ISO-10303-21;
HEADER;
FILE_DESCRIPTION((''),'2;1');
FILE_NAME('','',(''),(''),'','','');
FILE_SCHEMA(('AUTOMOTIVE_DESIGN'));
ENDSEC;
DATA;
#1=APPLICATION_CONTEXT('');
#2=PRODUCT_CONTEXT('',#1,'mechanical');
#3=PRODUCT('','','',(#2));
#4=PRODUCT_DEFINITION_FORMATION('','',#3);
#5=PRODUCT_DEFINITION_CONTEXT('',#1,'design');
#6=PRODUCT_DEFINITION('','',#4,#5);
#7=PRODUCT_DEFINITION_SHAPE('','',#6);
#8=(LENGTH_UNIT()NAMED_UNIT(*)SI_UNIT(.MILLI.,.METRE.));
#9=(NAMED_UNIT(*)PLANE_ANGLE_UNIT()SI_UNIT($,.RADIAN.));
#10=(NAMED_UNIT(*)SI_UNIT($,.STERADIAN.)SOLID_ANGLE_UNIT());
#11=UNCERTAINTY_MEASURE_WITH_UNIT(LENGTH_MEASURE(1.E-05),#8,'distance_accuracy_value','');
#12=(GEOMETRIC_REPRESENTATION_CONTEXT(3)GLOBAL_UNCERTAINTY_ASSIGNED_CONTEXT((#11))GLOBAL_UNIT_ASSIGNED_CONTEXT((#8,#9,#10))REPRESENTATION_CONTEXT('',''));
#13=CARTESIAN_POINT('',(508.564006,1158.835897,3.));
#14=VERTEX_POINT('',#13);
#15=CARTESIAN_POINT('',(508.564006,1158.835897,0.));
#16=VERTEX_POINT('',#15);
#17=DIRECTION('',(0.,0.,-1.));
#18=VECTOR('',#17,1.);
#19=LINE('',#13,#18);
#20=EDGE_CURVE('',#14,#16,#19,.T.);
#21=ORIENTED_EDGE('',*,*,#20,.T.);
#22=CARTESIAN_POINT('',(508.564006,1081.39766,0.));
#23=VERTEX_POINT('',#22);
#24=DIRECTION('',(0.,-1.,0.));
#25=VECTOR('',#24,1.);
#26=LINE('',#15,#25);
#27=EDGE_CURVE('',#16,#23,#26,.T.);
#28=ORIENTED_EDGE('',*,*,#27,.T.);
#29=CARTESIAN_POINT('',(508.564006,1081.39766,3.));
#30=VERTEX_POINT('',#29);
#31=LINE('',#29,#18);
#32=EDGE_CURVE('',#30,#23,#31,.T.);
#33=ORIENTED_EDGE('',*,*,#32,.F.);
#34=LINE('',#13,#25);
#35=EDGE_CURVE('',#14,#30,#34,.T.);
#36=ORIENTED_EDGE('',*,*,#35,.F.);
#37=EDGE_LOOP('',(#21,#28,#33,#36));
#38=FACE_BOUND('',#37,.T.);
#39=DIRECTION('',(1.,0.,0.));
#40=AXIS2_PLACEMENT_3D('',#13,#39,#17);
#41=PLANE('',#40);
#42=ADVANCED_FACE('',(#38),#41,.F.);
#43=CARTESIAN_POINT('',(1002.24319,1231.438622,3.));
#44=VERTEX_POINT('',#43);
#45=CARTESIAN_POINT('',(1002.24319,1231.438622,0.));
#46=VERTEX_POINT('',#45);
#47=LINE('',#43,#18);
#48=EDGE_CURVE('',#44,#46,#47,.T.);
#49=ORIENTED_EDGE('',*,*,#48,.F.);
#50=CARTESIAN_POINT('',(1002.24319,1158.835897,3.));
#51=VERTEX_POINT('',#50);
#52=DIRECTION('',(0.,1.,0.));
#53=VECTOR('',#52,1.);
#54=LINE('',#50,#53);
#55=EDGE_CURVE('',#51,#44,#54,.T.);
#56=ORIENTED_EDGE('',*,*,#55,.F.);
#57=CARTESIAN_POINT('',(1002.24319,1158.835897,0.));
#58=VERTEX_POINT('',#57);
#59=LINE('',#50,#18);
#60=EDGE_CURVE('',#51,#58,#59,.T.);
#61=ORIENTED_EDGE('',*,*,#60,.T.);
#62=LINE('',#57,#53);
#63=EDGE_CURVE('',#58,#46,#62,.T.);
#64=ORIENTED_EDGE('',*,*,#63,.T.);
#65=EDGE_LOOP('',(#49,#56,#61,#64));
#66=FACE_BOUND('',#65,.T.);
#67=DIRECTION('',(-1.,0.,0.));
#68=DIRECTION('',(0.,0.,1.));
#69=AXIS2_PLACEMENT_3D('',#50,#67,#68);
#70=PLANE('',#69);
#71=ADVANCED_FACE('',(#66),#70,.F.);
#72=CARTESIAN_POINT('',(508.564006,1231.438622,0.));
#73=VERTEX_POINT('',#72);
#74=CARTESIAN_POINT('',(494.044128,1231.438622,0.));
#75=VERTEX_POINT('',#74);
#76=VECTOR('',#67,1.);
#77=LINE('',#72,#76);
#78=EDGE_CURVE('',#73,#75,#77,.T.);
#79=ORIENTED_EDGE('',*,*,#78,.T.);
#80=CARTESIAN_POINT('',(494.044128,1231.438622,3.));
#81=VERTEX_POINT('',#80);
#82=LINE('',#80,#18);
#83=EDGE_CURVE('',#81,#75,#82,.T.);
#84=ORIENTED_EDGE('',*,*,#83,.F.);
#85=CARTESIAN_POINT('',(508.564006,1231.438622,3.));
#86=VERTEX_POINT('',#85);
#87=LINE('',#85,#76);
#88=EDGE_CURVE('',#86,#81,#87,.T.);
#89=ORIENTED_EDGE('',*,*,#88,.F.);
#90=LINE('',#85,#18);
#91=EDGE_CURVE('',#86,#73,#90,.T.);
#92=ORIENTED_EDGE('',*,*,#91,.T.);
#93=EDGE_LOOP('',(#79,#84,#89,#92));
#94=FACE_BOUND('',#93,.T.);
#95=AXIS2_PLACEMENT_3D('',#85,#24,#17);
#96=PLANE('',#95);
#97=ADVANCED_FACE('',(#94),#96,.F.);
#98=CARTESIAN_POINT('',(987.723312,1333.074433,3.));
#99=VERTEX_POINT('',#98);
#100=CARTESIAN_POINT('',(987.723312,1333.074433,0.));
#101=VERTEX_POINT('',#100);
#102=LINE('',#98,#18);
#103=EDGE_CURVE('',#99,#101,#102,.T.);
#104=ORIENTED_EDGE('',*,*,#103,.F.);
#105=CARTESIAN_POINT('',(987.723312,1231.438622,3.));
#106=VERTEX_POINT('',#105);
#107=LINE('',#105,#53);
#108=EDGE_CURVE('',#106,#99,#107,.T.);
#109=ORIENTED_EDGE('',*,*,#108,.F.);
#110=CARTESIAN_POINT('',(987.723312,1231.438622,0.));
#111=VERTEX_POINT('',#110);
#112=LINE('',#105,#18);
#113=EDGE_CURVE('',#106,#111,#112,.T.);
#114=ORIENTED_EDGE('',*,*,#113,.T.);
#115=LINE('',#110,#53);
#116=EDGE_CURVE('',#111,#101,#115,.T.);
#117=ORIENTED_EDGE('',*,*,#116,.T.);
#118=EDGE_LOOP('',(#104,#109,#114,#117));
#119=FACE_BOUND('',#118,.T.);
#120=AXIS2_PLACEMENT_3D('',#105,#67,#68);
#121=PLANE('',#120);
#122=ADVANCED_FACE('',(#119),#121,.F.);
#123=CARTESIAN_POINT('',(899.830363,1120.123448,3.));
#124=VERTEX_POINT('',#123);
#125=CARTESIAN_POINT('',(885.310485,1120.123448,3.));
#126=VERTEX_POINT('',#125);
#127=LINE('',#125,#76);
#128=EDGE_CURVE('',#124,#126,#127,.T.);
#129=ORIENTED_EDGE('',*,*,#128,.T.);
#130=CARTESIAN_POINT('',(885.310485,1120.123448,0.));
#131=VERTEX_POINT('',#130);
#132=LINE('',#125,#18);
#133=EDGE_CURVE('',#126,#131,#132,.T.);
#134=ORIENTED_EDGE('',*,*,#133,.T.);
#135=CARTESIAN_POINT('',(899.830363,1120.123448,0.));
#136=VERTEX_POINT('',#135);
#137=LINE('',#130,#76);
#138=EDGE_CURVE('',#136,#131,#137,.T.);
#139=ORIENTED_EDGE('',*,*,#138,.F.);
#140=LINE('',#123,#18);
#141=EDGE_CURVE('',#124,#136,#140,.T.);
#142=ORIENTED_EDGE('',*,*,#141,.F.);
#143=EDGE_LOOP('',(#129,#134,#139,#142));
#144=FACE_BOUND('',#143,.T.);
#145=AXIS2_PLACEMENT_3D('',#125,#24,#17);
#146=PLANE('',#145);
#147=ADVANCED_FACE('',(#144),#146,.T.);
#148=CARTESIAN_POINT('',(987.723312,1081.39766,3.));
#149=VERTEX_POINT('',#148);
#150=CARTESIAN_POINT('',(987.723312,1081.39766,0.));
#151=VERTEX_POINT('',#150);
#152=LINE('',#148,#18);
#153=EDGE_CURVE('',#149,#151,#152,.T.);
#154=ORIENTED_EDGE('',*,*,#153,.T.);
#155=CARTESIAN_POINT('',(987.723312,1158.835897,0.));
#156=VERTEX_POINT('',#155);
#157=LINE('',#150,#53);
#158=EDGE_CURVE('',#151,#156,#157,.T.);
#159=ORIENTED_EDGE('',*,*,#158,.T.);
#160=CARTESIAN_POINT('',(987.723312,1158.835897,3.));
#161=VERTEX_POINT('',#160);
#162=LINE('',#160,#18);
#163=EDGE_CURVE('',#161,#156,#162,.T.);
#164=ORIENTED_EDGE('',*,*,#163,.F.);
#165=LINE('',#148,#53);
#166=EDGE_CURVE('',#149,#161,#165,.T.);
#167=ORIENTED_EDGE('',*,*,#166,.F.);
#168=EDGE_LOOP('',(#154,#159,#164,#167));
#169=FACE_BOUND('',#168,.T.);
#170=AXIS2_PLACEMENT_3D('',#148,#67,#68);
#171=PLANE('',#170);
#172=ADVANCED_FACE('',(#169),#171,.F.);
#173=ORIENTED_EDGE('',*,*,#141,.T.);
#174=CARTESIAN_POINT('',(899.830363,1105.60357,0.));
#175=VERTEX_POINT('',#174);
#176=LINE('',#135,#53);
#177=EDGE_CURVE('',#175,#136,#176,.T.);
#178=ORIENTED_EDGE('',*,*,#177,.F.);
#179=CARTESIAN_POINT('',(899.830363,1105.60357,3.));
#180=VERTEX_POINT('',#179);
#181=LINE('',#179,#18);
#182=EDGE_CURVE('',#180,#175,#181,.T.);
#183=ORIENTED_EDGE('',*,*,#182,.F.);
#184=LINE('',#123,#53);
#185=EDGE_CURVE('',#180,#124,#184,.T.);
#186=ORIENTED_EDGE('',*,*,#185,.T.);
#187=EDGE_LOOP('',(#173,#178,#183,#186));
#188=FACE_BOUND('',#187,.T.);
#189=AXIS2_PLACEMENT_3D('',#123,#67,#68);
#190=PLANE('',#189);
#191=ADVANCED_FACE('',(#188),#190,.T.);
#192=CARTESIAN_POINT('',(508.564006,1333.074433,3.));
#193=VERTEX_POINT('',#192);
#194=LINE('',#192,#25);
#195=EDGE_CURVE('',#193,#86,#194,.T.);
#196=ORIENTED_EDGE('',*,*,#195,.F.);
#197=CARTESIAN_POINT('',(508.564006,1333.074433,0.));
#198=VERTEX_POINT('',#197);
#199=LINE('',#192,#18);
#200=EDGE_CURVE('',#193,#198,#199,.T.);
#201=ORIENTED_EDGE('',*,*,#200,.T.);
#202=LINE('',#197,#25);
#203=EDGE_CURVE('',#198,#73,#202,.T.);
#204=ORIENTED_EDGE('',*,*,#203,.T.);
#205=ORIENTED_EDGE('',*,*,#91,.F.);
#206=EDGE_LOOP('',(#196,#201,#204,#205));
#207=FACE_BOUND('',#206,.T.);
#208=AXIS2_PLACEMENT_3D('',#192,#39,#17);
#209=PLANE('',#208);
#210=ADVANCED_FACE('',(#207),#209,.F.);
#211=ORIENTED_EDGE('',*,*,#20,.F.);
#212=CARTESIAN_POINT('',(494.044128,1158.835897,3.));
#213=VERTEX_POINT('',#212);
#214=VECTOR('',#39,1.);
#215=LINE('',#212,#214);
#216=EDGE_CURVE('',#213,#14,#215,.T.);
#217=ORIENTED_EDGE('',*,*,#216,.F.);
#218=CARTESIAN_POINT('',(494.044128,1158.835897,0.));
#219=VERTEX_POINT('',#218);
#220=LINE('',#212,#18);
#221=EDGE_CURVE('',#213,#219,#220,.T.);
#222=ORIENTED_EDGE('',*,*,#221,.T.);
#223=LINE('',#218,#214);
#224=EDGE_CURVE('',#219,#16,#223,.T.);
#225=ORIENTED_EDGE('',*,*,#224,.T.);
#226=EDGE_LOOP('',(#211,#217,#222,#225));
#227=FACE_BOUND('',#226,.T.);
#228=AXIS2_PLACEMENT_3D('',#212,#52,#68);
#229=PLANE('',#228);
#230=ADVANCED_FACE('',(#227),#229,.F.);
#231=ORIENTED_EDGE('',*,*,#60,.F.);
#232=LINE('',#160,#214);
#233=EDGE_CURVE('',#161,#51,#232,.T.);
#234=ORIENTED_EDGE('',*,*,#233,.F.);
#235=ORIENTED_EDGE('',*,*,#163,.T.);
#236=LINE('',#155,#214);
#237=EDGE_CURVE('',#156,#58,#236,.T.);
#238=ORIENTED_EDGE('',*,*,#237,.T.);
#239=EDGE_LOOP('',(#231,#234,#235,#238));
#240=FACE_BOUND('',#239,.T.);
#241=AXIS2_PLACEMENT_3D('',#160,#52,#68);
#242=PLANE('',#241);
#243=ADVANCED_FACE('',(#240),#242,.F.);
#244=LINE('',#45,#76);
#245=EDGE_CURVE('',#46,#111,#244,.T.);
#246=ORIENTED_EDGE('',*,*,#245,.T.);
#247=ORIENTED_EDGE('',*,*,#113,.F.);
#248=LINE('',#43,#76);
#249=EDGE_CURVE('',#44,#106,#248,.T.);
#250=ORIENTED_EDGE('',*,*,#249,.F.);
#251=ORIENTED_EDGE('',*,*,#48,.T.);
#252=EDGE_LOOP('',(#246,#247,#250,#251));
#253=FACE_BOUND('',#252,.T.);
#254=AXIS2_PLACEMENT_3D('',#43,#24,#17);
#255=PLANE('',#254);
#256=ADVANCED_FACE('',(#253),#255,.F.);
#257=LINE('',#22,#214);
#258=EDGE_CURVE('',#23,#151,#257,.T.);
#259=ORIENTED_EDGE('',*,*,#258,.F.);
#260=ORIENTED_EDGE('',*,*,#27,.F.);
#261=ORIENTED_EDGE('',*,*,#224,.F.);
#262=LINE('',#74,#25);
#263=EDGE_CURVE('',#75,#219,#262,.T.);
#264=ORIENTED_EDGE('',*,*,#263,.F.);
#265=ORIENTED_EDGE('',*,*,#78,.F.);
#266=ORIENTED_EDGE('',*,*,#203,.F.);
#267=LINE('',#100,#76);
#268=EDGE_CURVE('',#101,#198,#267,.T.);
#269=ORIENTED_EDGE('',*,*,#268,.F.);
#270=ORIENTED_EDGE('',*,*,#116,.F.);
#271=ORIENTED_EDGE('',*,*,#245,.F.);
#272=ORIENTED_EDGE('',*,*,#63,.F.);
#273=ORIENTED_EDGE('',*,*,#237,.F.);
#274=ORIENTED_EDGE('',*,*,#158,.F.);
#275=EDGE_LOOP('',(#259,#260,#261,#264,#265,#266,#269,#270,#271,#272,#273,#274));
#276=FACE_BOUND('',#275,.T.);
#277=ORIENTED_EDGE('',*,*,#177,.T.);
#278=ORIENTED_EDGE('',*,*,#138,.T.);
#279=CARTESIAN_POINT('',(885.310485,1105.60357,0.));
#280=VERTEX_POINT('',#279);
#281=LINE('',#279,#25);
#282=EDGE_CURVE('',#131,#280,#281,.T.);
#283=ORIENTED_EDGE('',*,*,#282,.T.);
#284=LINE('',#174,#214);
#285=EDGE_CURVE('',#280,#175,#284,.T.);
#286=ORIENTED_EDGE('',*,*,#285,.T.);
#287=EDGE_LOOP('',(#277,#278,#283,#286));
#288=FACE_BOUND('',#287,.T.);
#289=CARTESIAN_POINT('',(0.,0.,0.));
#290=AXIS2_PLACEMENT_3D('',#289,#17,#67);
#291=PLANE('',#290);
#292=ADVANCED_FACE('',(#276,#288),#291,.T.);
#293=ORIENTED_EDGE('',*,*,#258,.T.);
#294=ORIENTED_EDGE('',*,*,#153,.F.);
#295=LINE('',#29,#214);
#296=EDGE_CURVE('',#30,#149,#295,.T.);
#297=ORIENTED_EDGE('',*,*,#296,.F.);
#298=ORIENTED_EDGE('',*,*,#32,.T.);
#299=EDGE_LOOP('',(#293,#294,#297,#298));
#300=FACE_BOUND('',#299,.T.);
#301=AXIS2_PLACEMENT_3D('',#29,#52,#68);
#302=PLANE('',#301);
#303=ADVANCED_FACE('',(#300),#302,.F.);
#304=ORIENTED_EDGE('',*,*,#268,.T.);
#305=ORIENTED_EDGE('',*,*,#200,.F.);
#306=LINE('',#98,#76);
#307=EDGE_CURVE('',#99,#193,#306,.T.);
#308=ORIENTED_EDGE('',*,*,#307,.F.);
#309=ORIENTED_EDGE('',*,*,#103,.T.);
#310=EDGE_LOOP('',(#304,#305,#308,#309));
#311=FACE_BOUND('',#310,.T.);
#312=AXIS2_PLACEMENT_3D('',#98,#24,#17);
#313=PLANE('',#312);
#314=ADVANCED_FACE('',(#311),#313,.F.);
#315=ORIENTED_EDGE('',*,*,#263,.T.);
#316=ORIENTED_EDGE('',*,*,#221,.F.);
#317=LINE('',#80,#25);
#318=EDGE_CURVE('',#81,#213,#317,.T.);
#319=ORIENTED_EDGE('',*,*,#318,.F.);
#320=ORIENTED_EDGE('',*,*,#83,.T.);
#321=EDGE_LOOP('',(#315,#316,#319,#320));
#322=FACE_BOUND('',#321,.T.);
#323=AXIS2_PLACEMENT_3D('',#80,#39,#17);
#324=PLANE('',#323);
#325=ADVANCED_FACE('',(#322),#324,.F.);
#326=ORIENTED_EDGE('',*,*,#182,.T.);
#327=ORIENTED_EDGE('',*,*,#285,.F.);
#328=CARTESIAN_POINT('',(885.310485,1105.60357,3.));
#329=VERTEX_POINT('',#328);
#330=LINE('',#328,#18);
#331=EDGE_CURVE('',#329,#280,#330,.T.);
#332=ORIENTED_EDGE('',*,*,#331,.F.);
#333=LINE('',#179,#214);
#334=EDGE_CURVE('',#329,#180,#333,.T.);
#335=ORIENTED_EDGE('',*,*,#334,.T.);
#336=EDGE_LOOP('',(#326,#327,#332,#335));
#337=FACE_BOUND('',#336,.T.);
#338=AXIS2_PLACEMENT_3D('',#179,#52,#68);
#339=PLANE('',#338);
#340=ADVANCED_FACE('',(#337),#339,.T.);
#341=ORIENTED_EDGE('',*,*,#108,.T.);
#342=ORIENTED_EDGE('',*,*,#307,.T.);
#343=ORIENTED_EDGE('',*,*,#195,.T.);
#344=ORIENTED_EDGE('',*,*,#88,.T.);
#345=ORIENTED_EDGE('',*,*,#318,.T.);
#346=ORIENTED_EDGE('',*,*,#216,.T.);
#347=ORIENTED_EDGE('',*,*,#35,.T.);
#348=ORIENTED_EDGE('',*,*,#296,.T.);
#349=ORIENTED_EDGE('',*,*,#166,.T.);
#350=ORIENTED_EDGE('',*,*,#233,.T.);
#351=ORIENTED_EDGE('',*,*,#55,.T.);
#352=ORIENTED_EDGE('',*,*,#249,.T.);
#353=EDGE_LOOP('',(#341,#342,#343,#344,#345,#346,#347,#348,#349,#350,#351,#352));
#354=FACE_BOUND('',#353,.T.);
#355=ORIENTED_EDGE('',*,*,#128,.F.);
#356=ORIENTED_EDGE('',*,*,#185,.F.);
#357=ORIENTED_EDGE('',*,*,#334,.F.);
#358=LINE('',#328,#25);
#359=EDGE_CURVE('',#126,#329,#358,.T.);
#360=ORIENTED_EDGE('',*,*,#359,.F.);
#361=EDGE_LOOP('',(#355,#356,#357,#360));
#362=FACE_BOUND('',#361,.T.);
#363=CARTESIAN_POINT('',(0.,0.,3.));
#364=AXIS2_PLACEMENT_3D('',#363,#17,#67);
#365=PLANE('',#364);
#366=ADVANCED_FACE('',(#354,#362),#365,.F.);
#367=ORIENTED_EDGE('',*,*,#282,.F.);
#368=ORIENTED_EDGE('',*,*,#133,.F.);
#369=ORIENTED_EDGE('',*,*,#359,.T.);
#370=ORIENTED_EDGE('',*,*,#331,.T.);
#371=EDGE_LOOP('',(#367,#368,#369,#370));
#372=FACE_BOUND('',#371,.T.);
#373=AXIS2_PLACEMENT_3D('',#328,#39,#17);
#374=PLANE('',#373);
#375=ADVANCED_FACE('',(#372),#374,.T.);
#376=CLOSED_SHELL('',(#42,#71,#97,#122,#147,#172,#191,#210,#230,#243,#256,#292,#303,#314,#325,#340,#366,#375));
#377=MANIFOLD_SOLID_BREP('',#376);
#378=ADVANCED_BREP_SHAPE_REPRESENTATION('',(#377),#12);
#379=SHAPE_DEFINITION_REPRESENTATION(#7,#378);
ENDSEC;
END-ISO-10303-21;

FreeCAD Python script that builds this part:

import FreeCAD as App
import Part
import Sketcher

V = App.Vector

doc = App.newDocument("Part")
body = doc.addObject("PartDesign::Body", "Body")

sketch1 = doc.addObject("Sketcher::SketchObject", "Sketch")
body.addObject(sketch1)
sketch1.AttachmentSupport = (doc.XY_Plane, [""])
sketch1.MapMode = "FlatFace"
sketch1.addGeometry([
    Part.LineSegment(V(988, 1159, 0), V(1002, 1159, 0)),
    Part.LineSegment(V(1002, 1159, 0), V(1002, 1231, 0)),
    Part.LineSegment(V(1002, 1231, 0), V(988, 1231, 0)),
    Part.LineSegment(V(988, 1231, 0), V(988, 1333, 0)),
    Part.LineSegment(V(988, 1333, 0), V(509, 1333, 0)),
    Part.LineSegment(V(509, 1333, 0), V(509, 1231, 0)),
    Part.LineSegment(V(509, 1231, 0), V(494, 1231, 0)),
    Part.LineSegment(V(494, 1231, 0), V(494, 1159, 0)),
    Part.LineSegment(V(494, 1159, 0), V(509, 1159, 0)),
    Part.LineSegment(V(509, 1159, 0), V(509, 1081, 0)),
    Part.LineSegment(V(509, 1081, 0), V(988, 1081, 0)),
    Part.LineSegment(V(988, 1081, 0), V(988, 1159, 0)),
    Part.LineSegment(V(900, 1106, 0), V(885, 1106, 0)),
    Part.LineSegment(V(885, 1106, 0), V(885, 1120, 0)),
    Part.LineSegment(V(885, 1120, 0), V(900, 1120, 0)),
    Part.LineSegment(V(900, 1120, 0), V(900, 1106, 0)),
], False)
sketch1.addConstraint([
    Sketcher.Constraint("Coincident", 0, 2, 1, 1),
    Sketcher.Constraint("Coincident", 1, 2, 2, 1),
    Sketcher.Constraint("Coincident", 2, 2, 3, 1),
    Sketcher.Constraint("Coincident", 3, 2, 4, 1),
    Sketcher.Constraint("Coincident", 4, 2, 5, 1),
    Sketcher.Constraint("Coincident", 5, 2, 6, 1),
    Sketcher.Constraint("Coincident", 6, 2, 7, 1),
    Sketcher.Constraint("Coincident", 7, 2, 8, 1),
    Sketcher.Constraint("Coincident", 8, 2, 9, 1),
    Sketcher.Constraint("Coincident", 9, 2, 10, 1),
    Sketcher.Constraint("Coincident", 10, 2, 11, 1),
    Sketcher.Constraint("Coincident", 11, 2, 0, 1),
    Sketcher.Constraint("Coincident", 12, 2, 13, 1),
    Sketcher.Constraint("Coincident", 13, 2, 14, 1),
    Sketcher.Constraint("Coincident", 14, 2, 15, 1),
    Sketcher.Constraint("Coincident", 15, 2, 12, 1),
    Sketcher.Constraint("Horizontal", 0),
    Sketcher.Constraint("Vertical", 1),
    Sketcher.Constraint("Horizontal", 2),
    Sketcher.Constraint("Vertical", 3),
    Sketcher.Constraint("Horizontal", 4),
    Sketcher.Constraint("Vertical", 5),
    Sketcher.Constraint("Horizontal", 6),
    Sketcher.Constraint("Vertical", 7),
    Sketcher.Constraint("Horizontal", 8),
    Sketcher.Constraint("Vertical", 9),
    Sketcher.Constraint("Horizontal", 10),
    Sketcher.Constraint("Vertical", 11),
    Sketcher.Constraint("Horizontal", 12),
    Sketcher.Constraint("Vertical", 13),
    Sketcher.Constraint("Horizontal", 14),
    Sketcher.Constraint("Vertical", 15),
    Sketcher.Constraint("Horizontal", 2, 2, 5, 2),
    Sketcher.Constraint("Horizontal", 0, 2, 7, 2),
    Sketcher.Constraint("Vertical", 5, 2, 8, 2),
    Sketcher.Constraint("Vertical", 3, 2, 10, 2),
    Sketcher.Constraint("Equal", 2, 6),
    Sketcher.Constraint("Equal", 8, 12),
    Sketcher.Constraint("Equal", 14, 13),
    Sketcher.Constraint("DistanceY", 3, 1, 3, 2, 101.635811),
    Sketcher.Constraint("DistanceX", 0, 1, 0, 2, 14.519878),
    Sketcher.Constraint("DistanceX", 4, 2, 4, 1, 479.159307),
    Sketcher.Constraint("DistanceY", 1, 1, 1, 2, 72.602725),
    Sketcher.Constraint("DistanceY", 9, 2, 9, 1, 77.438237),
    Sketcher.Constraint("DistanceX", -1, 1, 0, 2, 1002.24319),
    Sketcher.Constraint("DistanceY", -1, 1, 1, 2, 1231.438622),
    Sketcher.Constraint("DistanceY", -1, 1, 12, 2, 1105.60357),
    Sketcher.Constraint("DistanceX", 14, 2, 11, 2, 87.89295),
])
pad1 = doc.addObject("PartDesign::Pad", "Pad")
body.addObject(pad1)
pad1.Profile = sketch1
pad1.Length = 3

doc.recompute()
